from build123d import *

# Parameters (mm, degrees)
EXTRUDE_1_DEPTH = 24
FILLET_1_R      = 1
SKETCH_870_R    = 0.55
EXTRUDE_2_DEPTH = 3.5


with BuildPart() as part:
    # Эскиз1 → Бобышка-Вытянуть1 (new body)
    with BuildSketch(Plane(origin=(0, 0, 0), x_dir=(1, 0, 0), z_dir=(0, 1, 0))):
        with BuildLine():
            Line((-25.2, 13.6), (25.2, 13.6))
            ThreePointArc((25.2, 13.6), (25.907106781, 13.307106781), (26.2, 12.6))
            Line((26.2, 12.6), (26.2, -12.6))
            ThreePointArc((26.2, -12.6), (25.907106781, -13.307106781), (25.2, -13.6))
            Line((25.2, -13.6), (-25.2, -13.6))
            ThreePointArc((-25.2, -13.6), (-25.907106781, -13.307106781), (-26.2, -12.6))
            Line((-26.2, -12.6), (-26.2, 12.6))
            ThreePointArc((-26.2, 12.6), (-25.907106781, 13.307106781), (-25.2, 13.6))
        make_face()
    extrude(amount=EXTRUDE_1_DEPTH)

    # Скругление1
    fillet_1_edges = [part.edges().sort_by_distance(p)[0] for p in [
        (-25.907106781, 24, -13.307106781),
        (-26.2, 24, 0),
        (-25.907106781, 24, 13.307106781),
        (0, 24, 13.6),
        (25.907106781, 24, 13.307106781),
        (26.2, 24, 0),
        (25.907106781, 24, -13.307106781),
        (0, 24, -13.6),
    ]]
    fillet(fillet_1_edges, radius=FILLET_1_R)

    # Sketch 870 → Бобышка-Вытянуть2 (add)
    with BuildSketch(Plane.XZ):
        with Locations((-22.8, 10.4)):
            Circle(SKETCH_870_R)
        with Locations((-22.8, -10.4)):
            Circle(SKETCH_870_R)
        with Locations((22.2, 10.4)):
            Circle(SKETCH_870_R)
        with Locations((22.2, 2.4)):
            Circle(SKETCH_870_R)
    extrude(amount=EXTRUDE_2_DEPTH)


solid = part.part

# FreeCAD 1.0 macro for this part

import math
import FreeCAD as App
import Part
import Sketcher
from FreeCAD import Vector


def edges_at(feature, points):
    """Names of the edges that pass closest to the given points."""
    edges = feature.Shape.Edges
    near = lambda p: min(range(len(edges)), key=lambda i: edges[i].distToShape(Part.Vertex(*p))[0])
    return sorted({f"Edge{near(p) + 1}" for p in points})

doc = App.newDocument("Part")
body = doc.addObject("PartDesign::Body", "Body")

sketch1 = doc.addObject("Sketcher::SketchObject", "Sketch")
body.addObject(sketch1)
sketch1.AttachmentSupport = (doc.XZ_Plane, [""])
sketch1.MapMode = "FlatFace"
sketch1.addGeometry(Part.LineSegment(Vector(25.2, -13.6, 0), Vector(-25.2, -13.6, 0)), False)
sketch1.addGeometry(Part.ArcOfCircle(Part.Circle(Vector(-25.2, -12.6, 0), Vector(0, 0, 1), 1), math.radians(-180), math.radians(-90)), False)
sketch1.addGeometry(Part.LineSegment(Vector(-26.2, -12.6, 0), Vector(-26.2, 12.6, 0)), False)
sketch1.addGeometry(Part.ArcOfCircle(Part.Circle(Vector(-25.2, 12.6, 0), Vector(0, 0, 1), 1), math.radians(90), math.radians(180)), False)
sketch1.addGeometry(Part.LineSegment(Vector(-25.2, 13.6, 0), Vector(25.2, 13.6, 0)), False)
sketch1.addGeometry(Part.ArcOfCircle(Part.Circle(Vector(25.2, 12.6, 0), Vector(0, 0, 1), 1), math.radians(0), math.radians(90)), False)
sketch1.addGeometry(Part.LineSegment(Vector(26.2, 12.6, 0), Vector(26.2, -12.6, 0)), False)
sketch1.addGeometry(Part.ArcOfCircle(Part.Circle(Vector(25.2, -12.6, 0), Vector(0, 0, 1), 1), math.radians(-90), math.radians(0)), False)
sketch1.addConstraint(Sketcher.Constraint("Tangent", 0, 2, 1, 2))
sketch1.addConstraint(Sketcher.Constraint("Tangent", 1, 1, 2, 1))
sketch1.addConstraint(Sketcher.Constraint("Tangent", 2, 2, 3, 2))
sketch1.addConstraint(Sketcher.Constraint("Tangent", 3, 1, 4, 1))
sketch1.addConstraint(Sketcher.Constraint("Tangent", 4, 2, 5, 2))
sketch1.addConstraint(Sketcher.Constraint("Tangent", 5, 1, 6, 1))
sketch1.addConstraint(Sketcher.Constraint("Tangent", 6, 2, 7, 2))
sketch1.addConstraint(Sketcher.Constraint("Tangent", 7, 1, 0, 1))
sketch1.addConstraint(Sketcher.Constraint("Horizontal", 0))
sketch1.addConstraint(Sketcher.Constraint("Vertical", 2))
sketch1.addConstraint(Sketcher.Constraint("Horizontal", 4))
sketch1.addConstraint(Sketcher.Constraint("Vertical", 6))
sketch1.addConstraint(Sketcher.Constraint("Equal", 1, 3))
sketch1.addConstraint(Sketcher.Constraint("Equal", 3, 5))
sketch1.addConstraint(Sketcher.Constraint("Equal", 5, 7))
sketch1.addConstraint(Sketcher.Constraint("Symmetric", 1, 3, 5, 3, -1, 1))
sketch1.addConstraint(Sketcher.Constraint("Radius", 1, 1.0))
sketch1.addConstraint(Sketcher.Constraint("DistanceX", 0, 2, 0, 1, 50.4))
sketch1.addConstraint(Sketcher.Constraint("DistanceY", 2, 1, 2, 2, 25.2))
pad1 = doc.addObject("PartDesign::Pad", "Pad")
body.addObject(pad1)
pad1.Profile = sketch1
pad1.Length = 24
pad1.Reversed = True
doc.recompute()

fillet = doc.addObject("PartDesign::Fillet", "Fillet")
body.addObject(fillet)
fillet.Base = (pad1, edges_at(pad1, [
    (-25.907, 24, -13.307),
    (-26.2, 24, 0),
    (-25.907, 24, 13.307),
    (0, 24, 13.6),
    (25.907, 24, 13.307),
    (26.2, 24, 0),
    (25.907, 24, -13.307),
    (0, 24, -13.6),
]))
fillet.Radius = 1

sketch2 = doc.addObject("Sketcher::SketchObject", "Sketch001")
body.addObject(sketch2)
sketch2.AttachmentSupport = (doc.XZ_Plane, [""])
sketch2.MapMode = "FlatFace"
sketch2.addGeometry(Part.Circle(Vector(-22.8, 10.4, 0), Vector(0, 0, 1), 0.6), False)
sketch2.addGeometry(Part.Circle(Vector(-22.8, -10.4, 0), Vector(0, 0, 1), 0.6), False)
sketch2.addGeometry(Part.Circle(Vector(22.2, 10.4, 0), Vector(0, 0, 1), 0.6), False)
sketch2.addGeometry(Part.Circle(Vector(22.2, 2.4, 0), Vector(0, 0, 1), 0.6), False)
sketch2.addConstraint(Sketcher.Constraint("Equal", 0, 1))
sketch2.addConstraint(Sketcher.Constraint("Equal", 1, 2))
sketch2.addConstraint(Sketcher.Constraint("Equal", 2, 3))
sketch2.addConstraint(Sketcher.Constraint("Symmetric", 0, 3, 1, 3, -1))
sketch2.addConstraint(Sketcher.Constraint("Horizontal", 0, 3, 2, 3))
sketch2.addConstraint(Sketcher.Constraint("Vertical", 2, 3, 3, 3))
sketch2.addConstraint(Sketcher.Constraint("Diameter", 0, 1.1))
sketch2.addConstraint(Sketcher.Constraint("DistanceX", 0, 3, 2, 3, 45.0))
sketch2.addConstraint(Sketcher.Constraint("DistanceY", 3, 3, 2, 3, 8.0))
sketch2.addConstraint(Sketcher.Constraint("DistanceX", 0, 3, -1, 1, 22.8))
sketch2.addConstraint(Sketcher.Constraint("DistanceY", -1, 1, 0, 3, 10.4))
pad2 = doc.addObject("PartDesign::Pad", "Pad001")
body.addObject(pad2)
pad2.Profile = sketch2
pad2.Length = 3.5

doc.recompute()
